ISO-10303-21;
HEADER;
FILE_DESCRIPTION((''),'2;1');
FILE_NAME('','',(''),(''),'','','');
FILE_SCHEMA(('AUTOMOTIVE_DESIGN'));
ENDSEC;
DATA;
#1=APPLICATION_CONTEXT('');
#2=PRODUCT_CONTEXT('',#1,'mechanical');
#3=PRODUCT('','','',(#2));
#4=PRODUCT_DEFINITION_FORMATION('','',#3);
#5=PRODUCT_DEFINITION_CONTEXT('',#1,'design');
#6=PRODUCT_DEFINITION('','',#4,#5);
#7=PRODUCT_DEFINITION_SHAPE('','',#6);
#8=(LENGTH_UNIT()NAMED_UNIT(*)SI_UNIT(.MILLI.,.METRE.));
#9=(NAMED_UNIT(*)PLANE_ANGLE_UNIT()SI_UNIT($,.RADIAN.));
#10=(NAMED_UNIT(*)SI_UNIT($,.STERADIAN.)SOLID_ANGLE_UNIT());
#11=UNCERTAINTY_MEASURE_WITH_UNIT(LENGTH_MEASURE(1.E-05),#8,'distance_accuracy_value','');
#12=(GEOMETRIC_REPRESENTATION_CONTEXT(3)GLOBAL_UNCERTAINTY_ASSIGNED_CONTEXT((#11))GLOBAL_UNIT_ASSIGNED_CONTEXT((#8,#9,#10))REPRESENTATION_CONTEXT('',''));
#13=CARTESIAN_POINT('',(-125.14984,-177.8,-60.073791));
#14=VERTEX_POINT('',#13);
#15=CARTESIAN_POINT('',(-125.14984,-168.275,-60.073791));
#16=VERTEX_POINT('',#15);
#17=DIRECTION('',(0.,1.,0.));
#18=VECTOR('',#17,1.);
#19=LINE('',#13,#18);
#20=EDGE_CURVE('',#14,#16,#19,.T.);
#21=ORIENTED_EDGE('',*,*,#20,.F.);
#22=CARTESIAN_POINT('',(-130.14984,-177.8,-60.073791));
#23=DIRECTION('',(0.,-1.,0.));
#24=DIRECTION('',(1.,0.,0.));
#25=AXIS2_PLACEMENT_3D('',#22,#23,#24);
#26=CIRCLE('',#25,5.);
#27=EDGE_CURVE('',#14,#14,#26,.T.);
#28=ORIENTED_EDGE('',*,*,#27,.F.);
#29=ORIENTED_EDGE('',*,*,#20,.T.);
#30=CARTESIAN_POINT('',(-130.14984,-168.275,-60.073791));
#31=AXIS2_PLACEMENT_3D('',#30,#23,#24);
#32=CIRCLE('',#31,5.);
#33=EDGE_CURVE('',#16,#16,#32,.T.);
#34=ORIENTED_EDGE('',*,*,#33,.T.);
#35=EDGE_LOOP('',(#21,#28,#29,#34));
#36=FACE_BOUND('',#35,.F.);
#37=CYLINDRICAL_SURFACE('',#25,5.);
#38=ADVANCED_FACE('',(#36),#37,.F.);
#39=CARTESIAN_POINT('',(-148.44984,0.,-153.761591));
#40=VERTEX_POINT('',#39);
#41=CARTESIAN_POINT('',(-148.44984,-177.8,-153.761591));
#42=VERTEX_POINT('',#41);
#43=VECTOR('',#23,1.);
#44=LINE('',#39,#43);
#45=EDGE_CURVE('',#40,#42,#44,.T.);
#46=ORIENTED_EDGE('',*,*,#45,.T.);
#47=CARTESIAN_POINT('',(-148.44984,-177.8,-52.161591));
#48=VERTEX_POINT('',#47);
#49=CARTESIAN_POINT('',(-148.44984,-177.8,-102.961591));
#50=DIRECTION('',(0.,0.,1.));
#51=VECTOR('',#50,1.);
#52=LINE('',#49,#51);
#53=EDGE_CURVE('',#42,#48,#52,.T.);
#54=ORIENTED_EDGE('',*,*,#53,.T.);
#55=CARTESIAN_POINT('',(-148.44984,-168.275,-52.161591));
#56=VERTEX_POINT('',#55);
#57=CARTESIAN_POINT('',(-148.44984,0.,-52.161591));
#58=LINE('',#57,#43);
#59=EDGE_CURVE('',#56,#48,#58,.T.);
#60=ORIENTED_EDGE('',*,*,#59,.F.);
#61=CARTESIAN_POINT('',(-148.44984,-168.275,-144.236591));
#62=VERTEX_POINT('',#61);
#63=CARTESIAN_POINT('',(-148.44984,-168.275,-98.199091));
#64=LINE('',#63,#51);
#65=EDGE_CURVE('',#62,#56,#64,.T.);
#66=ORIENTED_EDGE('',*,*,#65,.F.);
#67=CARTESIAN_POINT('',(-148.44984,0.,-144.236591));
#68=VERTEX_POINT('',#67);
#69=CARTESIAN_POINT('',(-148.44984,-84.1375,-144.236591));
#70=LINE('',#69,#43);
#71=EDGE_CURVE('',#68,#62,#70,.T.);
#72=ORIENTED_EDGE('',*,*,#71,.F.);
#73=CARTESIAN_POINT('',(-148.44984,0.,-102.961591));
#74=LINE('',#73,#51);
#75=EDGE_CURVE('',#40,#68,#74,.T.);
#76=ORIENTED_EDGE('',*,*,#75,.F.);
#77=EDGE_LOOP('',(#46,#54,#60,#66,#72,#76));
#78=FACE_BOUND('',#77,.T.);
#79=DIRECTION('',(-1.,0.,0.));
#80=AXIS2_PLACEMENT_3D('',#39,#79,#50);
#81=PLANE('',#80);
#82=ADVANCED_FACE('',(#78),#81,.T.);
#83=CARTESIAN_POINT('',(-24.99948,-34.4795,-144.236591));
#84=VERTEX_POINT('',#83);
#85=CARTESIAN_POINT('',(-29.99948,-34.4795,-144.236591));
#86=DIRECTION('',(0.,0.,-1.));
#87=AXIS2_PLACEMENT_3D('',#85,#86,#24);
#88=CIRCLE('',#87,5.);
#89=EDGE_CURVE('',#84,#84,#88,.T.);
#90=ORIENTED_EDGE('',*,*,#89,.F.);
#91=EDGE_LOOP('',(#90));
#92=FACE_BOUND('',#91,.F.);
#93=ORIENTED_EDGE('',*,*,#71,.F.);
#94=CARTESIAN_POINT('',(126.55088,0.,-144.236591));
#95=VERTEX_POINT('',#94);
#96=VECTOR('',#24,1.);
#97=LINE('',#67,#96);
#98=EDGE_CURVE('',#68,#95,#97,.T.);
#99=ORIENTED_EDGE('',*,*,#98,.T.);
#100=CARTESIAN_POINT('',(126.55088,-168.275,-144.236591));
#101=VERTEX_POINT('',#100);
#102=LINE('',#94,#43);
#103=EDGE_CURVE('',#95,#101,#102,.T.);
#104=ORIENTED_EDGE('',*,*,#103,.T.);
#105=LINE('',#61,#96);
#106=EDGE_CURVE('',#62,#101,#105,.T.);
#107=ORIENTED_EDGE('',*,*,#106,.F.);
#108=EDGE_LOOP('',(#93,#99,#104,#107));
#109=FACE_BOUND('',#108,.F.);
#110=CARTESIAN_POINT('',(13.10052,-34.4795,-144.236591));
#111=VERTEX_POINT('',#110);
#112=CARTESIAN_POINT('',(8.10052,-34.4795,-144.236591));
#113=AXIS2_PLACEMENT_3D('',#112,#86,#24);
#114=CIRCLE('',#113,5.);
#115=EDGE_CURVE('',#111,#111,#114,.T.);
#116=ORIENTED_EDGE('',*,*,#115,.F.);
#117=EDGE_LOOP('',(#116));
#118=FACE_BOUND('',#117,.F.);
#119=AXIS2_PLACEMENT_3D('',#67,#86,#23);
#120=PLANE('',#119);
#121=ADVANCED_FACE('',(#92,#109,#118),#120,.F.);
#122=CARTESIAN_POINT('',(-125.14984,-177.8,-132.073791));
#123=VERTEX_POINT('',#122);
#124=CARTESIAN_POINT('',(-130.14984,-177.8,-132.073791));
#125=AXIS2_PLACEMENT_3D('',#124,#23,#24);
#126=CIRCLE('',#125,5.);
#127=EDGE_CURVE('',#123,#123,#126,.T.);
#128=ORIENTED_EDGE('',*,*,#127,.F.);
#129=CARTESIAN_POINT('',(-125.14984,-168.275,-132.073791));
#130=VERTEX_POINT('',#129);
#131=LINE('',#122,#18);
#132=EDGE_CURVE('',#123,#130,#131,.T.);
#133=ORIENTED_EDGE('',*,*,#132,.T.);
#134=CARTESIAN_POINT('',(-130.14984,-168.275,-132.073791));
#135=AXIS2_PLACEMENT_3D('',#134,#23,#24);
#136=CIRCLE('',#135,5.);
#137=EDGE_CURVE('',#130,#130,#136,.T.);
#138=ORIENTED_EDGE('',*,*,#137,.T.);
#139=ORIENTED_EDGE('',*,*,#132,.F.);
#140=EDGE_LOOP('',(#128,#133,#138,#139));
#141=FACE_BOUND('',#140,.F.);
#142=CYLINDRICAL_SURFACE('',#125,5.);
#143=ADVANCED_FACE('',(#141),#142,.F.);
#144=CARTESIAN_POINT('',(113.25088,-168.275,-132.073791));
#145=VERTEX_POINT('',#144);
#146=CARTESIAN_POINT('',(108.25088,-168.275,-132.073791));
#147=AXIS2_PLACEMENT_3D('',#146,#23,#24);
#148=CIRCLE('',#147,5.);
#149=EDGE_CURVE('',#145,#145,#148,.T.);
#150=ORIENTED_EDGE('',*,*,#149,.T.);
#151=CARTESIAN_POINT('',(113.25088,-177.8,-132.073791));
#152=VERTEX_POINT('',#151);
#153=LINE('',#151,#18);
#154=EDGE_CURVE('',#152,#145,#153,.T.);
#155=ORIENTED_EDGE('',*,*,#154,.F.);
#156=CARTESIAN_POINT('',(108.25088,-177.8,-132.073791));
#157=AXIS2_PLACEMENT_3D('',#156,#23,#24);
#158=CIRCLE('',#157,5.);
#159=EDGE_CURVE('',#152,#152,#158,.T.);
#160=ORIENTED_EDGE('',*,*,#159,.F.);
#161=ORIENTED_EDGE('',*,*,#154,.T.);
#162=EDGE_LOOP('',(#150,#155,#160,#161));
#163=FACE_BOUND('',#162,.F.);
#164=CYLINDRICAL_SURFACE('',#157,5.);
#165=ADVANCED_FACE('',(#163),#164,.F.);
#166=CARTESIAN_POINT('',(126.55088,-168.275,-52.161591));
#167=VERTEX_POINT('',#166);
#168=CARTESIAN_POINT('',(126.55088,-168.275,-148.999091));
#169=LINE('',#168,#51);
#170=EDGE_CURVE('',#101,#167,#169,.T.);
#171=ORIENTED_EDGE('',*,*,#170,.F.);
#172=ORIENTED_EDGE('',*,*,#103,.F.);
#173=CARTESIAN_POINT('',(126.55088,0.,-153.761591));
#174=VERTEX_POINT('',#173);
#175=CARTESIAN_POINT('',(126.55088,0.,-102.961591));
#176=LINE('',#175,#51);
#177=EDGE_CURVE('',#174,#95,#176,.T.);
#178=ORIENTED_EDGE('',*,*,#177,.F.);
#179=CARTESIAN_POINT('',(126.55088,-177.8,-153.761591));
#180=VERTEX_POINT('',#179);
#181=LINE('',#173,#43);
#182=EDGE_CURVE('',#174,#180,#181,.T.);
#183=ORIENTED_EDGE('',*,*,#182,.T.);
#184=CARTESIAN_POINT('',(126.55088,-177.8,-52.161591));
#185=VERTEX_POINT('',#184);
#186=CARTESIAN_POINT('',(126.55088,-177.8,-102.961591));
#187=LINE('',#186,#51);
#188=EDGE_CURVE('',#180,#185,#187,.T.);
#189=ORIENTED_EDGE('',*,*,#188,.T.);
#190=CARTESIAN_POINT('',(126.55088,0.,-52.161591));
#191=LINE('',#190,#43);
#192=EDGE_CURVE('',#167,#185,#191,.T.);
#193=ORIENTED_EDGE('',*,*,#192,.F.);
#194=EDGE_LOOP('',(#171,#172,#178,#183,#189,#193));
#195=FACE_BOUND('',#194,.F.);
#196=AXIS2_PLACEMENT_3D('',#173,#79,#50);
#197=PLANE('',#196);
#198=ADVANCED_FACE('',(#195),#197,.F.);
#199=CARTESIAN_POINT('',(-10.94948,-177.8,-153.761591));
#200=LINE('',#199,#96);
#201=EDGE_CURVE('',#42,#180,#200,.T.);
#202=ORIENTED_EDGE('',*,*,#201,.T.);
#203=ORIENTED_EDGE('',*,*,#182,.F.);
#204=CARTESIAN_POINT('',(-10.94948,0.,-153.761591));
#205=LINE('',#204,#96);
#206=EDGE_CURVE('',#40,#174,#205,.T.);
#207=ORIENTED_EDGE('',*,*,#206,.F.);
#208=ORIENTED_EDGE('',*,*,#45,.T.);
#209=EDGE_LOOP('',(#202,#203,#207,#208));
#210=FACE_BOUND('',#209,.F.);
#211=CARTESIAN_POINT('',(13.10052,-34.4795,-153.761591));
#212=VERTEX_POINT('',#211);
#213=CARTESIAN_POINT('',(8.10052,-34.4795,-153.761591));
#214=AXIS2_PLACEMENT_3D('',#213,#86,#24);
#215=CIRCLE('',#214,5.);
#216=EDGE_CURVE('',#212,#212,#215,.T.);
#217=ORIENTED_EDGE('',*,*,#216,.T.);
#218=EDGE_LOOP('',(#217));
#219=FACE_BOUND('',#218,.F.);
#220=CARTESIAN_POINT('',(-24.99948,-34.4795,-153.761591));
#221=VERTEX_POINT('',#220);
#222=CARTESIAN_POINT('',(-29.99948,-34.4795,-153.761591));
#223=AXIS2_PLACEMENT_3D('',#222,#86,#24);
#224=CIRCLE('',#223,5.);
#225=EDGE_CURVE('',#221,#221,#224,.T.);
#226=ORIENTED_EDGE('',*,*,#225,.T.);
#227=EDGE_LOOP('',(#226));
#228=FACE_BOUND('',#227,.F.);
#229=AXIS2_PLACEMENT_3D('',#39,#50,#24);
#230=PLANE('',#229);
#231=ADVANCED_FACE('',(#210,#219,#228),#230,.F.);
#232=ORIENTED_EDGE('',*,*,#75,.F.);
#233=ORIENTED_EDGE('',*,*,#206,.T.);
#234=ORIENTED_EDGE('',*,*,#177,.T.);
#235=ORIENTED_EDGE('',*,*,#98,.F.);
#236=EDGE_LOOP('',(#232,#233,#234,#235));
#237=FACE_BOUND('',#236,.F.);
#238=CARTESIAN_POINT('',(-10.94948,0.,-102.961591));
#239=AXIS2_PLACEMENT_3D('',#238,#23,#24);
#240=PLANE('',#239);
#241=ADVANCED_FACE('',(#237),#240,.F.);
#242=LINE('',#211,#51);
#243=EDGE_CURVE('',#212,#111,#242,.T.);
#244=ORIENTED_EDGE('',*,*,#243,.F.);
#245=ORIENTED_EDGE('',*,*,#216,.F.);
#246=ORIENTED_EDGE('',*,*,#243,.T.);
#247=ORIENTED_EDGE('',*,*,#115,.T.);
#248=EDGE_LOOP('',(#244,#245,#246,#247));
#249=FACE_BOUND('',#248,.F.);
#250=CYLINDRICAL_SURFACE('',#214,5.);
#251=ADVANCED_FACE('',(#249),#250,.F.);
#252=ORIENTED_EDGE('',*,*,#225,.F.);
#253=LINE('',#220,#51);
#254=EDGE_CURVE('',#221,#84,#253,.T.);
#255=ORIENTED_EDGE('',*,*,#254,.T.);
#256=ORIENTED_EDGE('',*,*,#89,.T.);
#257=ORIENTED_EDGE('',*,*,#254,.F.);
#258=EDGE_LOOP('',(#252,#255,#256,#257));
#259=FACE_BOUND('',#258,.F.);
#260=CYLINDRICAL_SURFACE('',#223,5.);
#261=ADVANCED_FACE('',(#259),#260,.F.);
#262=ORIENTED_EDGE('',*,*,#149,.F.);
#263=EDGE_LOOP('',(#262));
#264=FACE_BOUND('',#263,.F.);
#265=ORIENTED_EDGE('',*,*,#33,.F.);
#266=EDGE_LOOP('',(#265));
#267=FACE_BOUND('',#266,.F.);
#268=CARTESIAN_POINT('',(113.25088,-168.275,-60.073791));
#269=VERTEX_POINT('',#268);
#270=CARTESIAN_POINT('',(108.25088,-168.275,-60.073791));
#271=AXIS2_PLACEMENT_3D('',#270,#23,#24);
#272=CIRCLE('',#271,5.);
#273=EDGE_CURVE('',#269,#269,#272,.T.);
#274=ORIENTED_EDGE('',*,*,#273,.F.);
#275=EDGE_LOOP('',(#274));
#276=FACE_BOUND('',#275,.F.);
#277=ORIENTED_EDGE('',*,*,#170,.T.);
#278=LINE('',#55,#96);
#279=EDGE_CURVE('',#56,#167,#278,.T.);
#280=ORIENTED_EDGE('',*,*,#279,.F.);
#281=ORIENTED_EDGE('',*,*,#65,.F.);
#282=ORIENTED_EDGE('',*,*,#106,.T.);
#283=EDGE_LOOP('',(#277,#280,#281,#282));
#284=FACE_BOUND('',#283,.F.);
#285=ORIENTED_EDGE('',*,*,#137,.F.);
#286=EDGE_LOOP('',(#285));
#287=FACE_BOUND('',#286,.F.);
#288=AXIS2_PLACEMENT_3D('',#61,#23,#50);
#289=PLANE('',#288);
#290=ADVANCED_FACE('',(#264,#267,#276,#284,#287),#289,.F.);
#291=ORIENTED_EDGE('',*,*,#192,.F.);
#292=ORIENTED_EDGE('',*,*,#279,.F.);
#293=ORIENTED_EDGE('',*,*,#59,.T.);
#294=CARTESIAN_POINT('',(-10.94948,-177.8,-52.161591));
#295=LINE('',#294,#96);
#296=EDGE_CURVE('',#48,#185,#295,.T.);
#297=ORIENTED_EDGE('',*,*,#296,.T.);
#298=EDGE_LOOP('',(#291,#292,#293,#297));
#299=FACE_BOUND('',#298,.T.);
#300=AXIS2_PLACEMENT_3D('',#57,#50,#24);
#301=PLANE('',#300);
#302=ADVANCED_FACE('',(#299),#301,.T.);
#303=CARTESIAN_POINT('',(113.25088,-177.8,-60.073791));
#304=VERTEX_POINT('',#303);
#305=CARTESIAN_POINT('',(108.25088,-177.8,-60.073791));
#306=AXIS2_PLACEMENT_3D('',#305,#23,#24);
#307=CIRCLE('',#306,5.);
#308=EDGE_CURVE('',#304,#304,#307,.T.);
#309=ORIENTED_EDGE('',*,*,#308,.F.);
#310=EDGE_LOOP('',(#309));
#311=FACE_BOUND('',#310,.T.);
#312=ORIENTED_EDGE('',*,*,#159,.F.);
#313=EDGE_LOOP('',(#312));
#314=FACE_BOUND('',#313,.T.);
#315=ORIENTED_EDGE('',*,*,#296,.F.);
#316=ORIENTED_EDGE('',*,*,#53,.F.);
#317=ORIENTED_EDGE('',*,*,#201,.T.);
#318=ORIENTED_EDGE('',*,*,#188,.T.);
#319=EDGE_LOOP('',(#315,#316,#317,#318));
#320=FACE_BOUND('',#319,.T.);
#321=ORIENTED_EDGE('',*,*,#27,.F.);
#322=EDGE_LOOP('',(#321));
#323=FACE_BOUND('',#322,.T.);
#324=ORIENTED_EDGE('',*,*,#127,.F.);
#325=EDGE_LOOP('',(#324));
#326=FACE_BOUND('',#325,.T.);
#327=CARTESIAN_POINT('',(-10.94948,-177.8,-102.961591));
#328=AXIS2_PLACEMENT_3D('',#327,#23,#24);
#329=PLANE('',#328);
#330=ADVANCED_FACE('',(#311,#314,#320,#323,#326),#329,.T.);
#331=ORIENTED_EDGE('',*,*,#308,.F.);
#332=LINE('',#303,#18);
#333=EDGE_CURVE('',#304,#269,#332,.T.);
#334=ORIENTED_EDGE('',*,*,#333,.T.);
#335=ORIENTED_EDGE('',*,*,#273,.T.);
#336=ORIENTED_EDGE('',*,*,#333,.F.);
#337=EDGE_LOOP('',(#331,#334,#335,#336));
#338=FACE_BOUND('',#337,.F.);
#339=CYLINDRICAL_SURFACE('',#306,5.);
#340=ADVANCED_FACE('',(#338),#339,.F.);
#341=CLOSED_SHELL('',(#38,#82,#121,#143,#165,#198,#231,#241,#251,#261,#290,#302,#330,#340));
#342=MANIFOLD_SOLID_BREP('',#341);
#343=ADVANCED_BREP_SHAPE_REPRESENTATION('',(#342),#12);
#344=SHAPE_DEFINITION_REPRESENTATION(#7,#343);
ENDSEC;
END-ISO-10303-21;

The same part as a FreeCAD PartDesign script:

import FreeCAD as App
import Part
import Sketcher

V = App.Vector
Q = App.Units.Quantity

doc = App.newDocument("Part")
params = doc.addObject("Spreadsheet::Sheet", "Params")
for row, (alias, value) in enumerate([
    ("sketch1_height", "4 in"),
    ("pad1_length", "7 in"),
    ("pocket1_length", "25 mm"),
    ("sketch3_width", "6.625 in"),
    ("sketch3_height", "3.625 in"),
    ("pocket3_length", "1 in"),
], start=1):
    params.set(f"A{row}", alias)
    params.set(f"B{row}", "=" + value)
    params.setAlias(f"B{row}", alias)

body = doc.addObject("PartDesign::Body", "Body")

# Sketch on XZ plane
sketch1 = body.newObject("Sketcher::SketchObject", "Sketch")
sketch1.AttachmentSupport = (doc.getObject("XZ_Plane"), [""])
sketch1.MapMode = "FlatFace"
sketch1.addGeometry(Part.LineSegment(V(-148, -52, 0), V(-148, -154, 0)), False)
sketch1.addGeometry(Part.LineSegment(V(-148, -154, 0), V(127, -154, 0)), False)
sketch1.addGeometry(Part.LineSegment(V(127, -154, 0), V(127, -52, 0)), False)
sketch1.addGeometry(Part.LineSegment(V(127, -52, 0), V(-148, -52, 0)), False)
sketch1.addConstraint(Sketcher.Constraint("Coincident", 0, 2, 1, 1))
sketch1.addConstraint(Sketcher.Constraint("Coincident", 1, 2, 2, 1))
sketch1.addConstraint(Sketcher.Constraint("Coincident", 2, 2, 3, 1))
sketch1.addConstraint(Sketcher.Constraint("Coincident", 3, 2, 0, 1))
sketch1.addConstraint(Sketcher.Constraint("Vertical", 0))
sketch1.addConstraint(Sketcher.Constraint("Horizontal", 1))
sketch1.addConstraint(Sketcher.Constraint("Vertical", 2))
sketch1.addConstraint(Sketcher.Constraint("Horizontal", 3))
sketch1.addConstraint(Sketcher.Constraint("DistanceY", 0, 2, 0, 1, Q("4 in")))
sketch1.addConstraint(Sketcher.Constraint("DistanceX", 1, 1, 1, 2, Q("10.8268 in")))
sketch1.addConstraint(Sketcher.Constraint("DistanceX", 0, 2, -1, 1, Q("148.44984 mm")))
sketch1.addConstraint(Sketcher.Constraint("DistanceY", 0, 2, -1, 1, Q("153.761591 mm")))
sketch1.setExpression("Constraints[8]", "Params.sketch1_height")
pad1 = body.newObject("PartDesign::Pad", "Pad")
pad1.Profile = sketch1
pad1.setExpression("Length", "Params.pad1_length")

# Sketch on XZ plane
sketch2 = body.newObject("Sketcher::SketchObject", "Sketch001")
sketch2.AttachmentSupport = (doc.getObject("XZ_Plane"), [""])
sketch2.MapMode = "FlatFace"
sketch2.AttachmentOffset = App.Placement(V(0, 0, 7 * 25.4), App.Rotation())
sketch2.addGeometry(Part.Circle(V(-130, -60, 0), V(0, 0, 1), 5), False)
sketch2.addGeometry(Part.Circle(V(-130, -132, 0), V(0, 0, 1), 5), False)
sketch2.addGeometry(Part.Circle(V(108, -132, 0), V(0, 0, 1), 5), False)
sketch2.addGeometry(Part.Circle(V(108, -60, 0), V(0, 0, 1), 5), False)
sketch2.addConstraint(Sketcher.Constraint("Equal", 0, 1))
sketch2.addConstraint(Sketcher.Constraint("Equal", 1, 2))
sketch2.addConstraint(Sketcher.Constraint("Equal", 2, 3))
sketch2.addConstraint(Sketcher.Constraint("Horizontal", 1, 3, 2, 3))
sketch2.addConstraint(Sketcher.Constraint("Horizontal", 0, 3, 3, 3))
sketch2.addConstraint(Sketcher.Constraint("Vertical", 0, 3, 1, 3))
sketch2.addConstraint(Sketcher.Constraint("Vertical", 2, 3, 3, 3))
sketch2.addConstraint(Sketcher.Constraint("Diameter", 0, Q("10 mm")))
sketch2.addConstraint(Sketcher.Constraint("DistanceY", 1, 3, 0, 3, Q("72 mm")))
sketch2.addConstraint(Sketcher.Constraint("DistanceX", 0, 3, -1, 1, Q("130.14984 mm")))
sketch2.addConstraint(Sketcher.Constraint("DistanceY", 0, 3, -1, 1, Q("60.073791 mm")))
sketch2.addConstraint(Sketcher.Constraint("DistanceX", -1, 1, 2, 3, Q("108.25088 mm")))
pocket1 = body.newObject("PartDesign::Pocket", "Pocket")
pocket1.Profile = sketch2
pocket1.setExpression("Length", "Params.pocket1_length")

# Sketch on YZ plane
sketch3 = body.newObject("Sketcher::SketchObject", "Sketch002")
sketch3.AttachmentSupport = (doc.getObject("YZ_Plane"), [""])
sketch3.MapMode = "FlatFace"
sketch3.AttachmentOffset = App.Placement(V(0, 0, -148.44984), App.Rotation())
sketch3.addGeometry(Part.LineSegment(V(0, -52, 0), V(0, -144, 0)), False)
sketch3.addGeometry(Part.LineSegment(V(0, -144, 0), V(-168, -144, 0)), False)
sketch3.addGeometry(Part.LineSegment(V(-168, -144, 0), V(-168, -52, 0)), False)
sketch3.addGeometry(Part.LineSegment(V(-168, -52, 0), V(0, -52, 0)), False)
sketch3.addConstraint(Sketcher.Constraint("Coincident", 0, 2, 1, 1))
sketch3.addConstraint(Sketcher.Constraint("Coincident", 1, 2, 2, 1))
sketch3.addConstraint(Sketcher.Constraint("Coincident", 2, 2, 3, 1))
sketch3.addConstraint(Sketcher.Constraint("Coincident", 3, 2, 0, 1))
sketch3.addConstraint(Sketcher.Constraint("Vertical", 0))
sketch3.addConstraint(Sketcher.Constraint("Horizontal", 1))
sketch3.addConstraint(Sketcher.Constraint("Vertical", 2))
sketch3.addConstraint(Sketcher.Constraint("Horizontal", 3))
sketch3.addConstraint(Sketcher.Constraint("PointOnObject", 0, 2, -2))
sketch3.addConstraint(Sketcher.Constraint("DistanceX", 1, 2, 1, 1, Q("6.625 in")))
sketch3.addConstraint(Sketcher.Constraint("DistanceY", 0, 2, 0, 1, Q("3.625 in")))
sketch3.addConstraint(Sketcher.Constraint("DistanceY", 0, 2, -1, 1, Q("144.236591 mm")))
sketch3.setExpression("Constraints[9]", "Params.sketch3_width")
sketch3.setExpression("Constraints[10]", "Params.sketch3_height")
pocket2 = body.newObject("PartDesign::Pocket", "Pocket001")
pocket2.Profile = sketch3
pocket2.Type = "ThroughAll"
pocket2.Reversed = True

# Sketch on XY plane
sketch4 = body.newObject("Sketcher::SketchObject", "Sketch003")
sketch4.AttachmentSupport = (doc.getObject("XY_Plane"), [""])
sketch4.MapMode = "FlatFace"
sketch4.AttachmentOffset = App.Placement(V(0, 0, -153.761591), App.Rotation())
sketch4.addGeometry(Part.Circle(V(8, -34, 0), V(0, 0, 1), 5), False)
sketch4.addGeometry(Part.Circle(V(-30, -34, 0), V(0, 0, 1), 5), False)
sketch4.addConstraint(Sketcher.Constraint("Equal", 0, 1))
sketch4.addConstraint(Sketcher.Constraint("Horizontal", 0, 3, 1, 3))
sketch4.addConstraint(Sketcher.Constraint("DistanceX", 1, 3, 0, 3, Q("1.5 in")))
sketch4.addConstraint(Sketcher.Constraint("Diameter", 0, Q("10 mm")))
sketch4.addConstraint(Sketcher.Constraint("DistanceY", 0, 3, -1, 1, Q("34.4795 mm")))
sketch4.addConstraint(Sketcher.Constraint("DistanceX", -1, 1, 0, 3, Q("8.10052 mm")))
pocket3 = body.newObject("PartDesign::Pocket", "Pocket002")
pocket3.Profile = sketch4
pocket3.setExpression("Length", "Params.pocket3_length")
pocket3.Reversed = True

doc.recompute()
